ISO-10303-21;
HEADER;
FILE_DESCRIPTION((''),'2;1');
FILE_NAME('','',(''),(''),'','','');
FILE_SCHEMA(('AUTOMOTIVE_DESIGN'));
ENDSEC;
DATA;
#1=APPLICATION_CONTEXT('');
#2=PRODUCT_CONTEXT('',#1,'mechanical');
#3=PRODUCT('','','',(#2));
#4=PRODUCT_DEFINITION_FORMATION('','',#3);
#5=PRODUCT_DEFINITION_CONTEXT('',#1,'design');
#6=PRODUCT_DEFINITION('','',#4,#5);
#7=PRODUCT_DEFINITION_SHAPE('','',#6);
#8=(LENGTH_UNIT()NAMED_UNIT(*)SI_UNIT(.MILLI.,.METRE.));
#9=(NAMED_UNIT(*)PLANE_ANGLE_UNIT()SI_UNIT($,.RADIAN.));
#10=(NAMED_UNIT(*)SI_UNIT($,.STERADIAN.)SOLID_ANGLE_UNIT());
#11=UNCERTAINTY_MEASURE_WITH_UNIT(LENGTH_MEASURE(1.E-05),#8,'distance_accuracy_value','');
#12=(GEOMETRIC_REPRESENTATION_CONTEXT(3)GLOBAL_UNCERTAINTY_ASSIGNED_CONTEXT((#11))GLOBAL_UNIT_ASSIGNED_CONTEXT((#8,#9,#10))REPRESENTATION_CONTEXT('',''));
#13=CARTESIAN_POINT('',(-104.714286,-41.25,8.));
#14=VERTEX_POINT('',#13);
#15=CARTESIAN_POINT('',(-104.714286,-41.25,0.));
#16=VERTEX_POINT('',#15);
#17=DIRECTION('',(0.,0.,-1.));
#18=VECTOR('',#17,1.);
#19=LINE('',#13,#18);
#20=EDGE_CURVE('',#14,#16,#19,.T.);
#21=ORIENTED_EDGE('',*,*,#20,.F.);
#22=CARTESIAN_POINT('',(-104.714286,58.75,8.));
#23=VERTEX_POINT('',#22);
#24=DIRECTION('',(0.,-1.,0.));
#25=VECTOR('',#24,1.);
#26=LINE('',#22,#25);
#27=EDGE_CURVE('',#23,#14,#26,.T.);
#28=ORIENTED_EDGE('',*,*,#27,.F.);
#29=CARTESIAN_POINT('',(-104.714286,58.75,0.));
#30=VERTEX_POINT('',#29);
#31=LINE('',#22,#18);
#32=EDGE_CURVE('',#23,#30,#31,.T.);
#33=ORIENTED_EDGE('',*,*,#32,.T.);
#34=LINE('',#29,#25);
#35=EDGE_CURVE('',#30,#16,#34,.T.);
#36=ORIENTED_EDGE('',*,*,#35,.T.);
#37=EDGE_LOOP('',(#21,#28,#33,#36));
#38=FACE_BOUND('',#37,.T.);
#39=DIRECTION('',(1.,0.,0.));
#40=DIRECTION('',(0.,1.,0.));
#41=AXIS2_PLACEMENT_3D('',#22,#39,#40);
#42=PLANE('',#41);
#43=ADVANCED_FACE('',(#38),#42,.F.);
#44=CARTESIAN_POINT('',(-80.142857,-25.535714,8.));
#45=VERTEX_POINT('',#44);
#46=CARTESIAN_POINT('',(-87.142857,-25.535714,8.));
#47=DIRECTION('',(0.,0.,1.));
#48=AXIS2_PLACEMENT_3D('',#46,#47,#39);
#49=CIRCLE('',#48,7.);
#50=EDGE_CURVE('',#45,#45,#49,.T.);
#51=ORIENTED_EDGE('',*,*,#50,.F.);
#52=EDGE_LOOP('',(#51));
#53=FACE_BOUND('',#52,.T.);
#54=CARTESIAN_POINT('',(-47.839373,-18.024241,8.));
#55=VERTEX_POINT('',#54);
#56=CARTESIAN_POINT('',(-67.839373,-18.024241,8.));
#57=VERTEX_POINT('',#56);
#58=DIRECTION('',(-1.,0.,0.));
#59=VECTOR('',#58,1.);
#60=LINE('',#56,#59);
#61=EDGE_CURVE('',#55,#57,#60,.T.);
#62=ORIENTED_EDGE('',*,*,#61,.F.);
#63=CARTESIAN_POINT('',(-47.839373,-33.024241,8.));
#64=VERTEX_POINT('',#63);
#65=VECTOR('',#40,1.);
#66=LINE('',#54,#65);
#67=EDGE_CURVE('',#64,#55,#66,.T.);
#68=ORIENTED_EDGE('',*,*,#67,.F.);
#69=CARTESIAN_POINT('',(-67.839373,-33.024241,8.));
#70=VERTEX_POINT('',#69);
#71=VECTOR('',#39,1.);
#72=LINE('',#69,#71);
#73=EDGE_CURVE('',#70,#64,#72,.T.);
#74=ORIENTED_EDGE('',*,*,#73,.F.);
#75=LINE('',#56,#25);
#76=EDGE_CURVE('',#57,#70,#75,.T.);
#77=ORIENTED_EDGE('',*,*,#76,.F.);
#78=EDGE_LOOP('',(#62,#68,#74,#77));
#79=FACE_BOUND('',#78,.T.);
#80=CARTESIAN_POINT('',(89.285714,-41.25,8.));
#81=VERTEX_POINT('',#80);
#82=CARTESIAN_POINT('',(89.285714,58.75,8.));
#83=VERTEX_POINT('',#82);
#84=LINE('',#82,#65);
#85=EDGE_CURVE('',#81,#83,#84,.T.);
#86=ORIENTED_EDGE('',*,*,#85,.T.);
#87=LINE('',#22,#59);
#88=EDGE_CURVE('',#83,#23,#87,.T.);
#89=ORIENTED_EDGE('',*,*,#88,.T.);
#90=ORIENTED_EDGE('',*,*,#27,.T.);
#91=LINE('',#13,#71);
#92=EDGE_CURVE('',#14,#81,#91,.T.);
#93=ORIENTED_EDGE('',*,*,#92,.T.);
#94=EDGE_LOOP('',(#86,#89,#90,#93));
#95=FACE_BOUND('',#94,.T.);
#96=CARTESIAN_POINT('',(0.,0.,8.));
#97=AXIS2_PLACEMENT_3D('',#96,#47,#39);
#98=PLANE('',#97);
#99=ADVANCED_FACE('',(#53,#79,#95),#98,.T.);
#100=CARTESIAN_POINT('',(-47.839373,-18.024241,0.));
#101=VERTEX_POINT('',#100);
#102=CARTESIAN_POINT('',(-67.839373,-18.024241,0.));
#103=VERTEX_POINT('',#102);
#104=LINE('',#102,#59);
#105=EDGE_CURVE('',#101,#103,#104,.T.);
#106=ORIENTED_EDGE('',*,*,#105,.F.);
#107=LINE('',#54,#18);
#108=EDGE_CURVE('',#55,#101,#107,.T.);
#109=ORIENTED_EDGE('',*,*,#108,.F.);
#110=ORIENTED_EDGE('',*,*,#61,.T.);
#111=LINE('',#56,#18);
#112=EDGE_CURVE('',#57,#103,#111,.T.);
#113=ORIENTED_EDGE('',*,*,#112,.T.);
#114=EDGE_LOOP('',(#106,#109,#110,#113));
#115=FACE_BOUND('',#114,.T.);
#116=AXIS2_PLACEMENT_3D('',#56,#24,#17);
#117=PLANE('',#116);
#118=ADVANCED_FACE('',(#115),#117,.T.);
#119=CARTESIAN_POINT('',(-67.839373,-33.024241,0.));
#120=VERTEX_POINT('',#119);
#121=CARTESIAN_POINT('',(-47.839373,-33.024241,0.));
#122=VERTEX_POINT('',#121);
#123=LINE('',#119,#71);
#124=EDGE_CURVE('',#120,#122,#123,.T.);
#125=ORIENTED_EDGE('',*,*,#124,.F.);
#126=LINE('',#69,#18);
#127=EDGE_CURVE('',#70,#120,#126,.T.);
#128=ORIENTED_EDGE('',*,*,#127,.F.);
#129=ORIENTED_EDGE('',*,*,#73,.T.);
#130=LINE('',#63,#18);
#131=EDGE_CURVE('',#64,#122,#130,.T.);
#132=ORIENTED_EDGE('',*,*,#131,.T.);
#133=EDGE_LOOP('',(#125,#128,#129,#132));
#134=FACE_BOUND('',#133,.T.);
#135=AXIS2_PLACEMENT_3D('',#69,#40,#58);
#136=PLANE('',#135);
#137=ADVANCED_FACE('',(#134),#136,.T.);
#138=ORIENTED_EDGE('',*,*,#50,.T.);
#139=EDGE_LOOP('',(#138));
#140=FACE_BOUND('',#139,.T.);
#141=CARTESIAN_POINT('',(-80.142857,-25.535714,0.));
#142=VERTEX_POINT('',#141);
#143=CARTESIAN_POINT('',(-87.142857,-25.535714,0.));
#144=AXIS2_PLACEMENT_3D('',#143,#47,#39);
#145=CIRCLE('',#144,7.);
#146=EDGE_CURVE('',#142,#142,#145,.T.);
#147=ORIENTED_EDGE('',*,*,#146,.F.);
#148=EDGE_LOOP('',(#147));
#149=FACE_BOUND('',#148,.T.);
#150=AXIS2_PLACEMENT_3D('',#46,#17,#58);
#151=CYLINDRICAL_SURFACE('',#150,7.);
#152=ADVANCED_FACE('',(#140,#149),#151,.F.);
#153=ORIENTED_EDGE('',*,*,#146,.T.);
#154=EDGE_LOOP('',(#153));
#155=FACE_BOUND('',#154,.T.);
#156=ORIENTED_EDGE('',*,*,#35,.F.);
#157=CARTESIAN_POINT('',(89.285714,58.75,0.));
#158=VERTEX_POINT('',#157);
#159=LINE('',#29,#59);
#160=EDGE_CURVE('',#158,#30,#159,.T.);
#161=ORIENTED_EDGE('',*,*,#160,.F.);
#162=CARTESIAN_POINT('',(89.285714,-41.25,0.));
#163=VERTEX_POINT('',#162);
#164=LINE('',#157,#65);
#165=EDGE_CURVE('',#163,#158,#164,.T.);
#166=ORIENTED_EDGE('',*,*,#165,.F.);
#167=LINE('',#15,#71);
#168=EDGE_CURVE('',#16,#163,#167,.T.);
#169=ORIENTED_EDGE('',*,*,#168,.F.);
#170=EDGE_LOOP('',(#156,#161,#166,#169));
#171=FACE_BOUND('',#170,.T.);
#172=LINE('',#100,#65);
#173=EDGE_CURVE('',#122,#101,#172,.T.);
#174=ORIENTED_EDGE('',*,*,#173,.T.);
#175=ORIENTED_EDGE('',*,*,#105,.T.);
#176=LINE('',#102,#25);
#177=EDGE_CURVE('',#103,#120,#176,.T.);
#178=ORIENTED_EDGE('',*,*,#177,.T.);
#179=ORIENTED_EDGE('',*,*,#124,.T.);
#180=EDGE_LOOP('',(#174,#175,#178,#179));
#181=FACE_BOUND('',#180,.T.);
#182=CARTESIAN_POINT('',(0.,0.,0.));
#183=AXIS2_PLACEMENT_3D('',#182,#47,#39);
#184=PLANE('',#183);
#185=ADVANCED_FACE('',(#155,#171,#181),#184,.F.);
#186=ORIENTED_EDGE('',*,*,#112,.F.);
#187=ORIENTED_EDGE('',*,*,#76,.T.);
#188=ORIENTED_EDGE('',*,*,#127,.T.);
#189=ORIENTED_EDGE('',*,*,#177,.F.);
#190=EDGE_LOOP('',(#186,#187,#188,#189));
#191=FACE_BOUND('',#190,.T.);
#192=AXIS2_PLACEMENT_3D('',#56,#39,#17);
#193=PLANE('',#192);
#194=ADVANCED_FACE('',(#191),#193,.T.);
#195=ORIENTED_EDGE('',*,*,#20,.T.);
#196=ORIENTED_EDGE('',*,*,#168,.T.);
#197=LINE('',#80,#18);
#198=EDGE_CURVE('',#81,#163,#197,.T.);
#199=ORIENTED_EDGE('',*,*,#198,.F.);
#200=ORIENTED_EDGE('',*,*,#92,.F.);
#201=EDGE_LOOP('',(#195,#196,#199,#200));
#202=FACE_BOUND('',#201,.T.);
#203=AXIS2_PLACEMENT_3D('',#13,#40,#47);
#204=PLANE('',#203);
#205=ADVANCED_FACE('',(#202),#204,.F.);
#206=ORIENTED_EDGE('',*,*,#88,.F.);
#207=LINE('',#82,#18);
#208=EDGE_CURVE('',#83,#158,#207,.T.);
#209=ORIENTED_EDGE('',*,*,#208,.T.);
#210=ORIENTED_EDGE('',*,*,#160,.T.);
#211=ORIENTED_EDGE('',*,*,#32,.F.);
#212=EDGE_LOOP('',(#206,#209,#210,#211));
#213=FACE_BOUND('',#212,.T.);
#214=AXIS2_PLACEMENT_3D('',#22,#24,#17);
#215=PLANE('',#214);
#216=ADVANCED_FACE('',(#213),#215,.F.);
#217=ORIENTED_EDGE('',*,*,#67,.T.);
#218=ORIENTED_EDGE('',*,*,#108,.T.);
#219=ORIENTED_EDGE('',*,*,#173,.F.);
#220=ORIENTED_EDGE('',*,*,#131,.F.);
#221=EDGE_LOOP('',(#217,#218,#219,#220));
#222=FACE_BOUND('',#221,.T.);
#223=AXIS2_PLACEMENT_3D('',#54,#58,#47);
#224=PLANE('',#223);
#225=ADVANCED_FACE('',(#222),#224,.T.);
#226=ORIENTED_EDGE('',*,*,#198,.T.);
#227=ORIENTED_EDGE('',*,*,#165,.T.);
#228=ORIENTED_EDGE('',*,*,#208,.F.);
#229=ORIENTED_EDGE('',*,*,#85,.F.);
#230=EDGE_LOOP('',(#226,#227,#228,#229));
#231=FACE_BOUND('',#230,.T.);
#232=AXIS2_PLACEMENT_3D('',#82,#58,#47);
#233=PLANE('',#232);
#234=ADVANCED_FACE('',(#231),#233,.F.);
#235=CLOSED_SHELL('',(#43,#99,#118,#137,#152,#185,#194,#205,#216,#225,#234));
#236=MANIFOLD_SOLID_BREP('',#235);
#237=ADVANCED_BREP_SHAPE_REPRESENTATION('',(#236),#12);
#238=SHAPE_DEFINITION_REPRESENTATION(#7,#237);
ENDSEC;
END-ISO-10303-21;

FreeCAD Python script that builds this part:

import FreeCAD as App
import Part
import Sketcher


def add_polygon(sketch, points):
    """Adds a closed chain of lines whose ends are joined by coincident constraints."""
    first, n = sketch.GeometryCount, len(points)
    for a, b in zip(points, points[1:] + points[:1]):
        sketch.addGeometry(Part.LineSegment(App.Vector(*a, 0), App.Vector(*b, 0)), False)
    for i in range(n):
        sketch.addConstraint(Sketcher.Constraint("Coincident", first + i, 2, first + (i + 1) % n, 1))

doc = App.newDocument("Part")
body = doc.addObject("PartDesign::Body", "Body")

sketch1 = body.newObject("Sketcher::SketchObject", "Sketch")
sketch1.AttachmentSupport = (doc.getObject("XY_Plane"), [""])
sketch1.MapMode = "FlatFace"
add_polygon(sketch1, [(-105, 59), (-105, -41), (89, -41), (89, 59)])
sketch1.addGeometry(Part.Circle(App.Vector(-87, -26, 0), App.Vector(0, 0, 1), 7), False)
add_polygon(sketch1, [(-48, -33), (-68, -33), (-68, -18), (-48, -18)])
sketch1.addConstraint([
    Sketcher.Constraint("Vertical", 0),
    Sketcher.Constraint("Horizontal", 1),
    Sketcher.Constraint("Vertical", 2),
    Sketcher.Constraint("Horizontal", 3),
    Sketcher.Constraint("Horizontal", 5),
    Sketcher.Constraint("Vertical", 6),
    Sketcher.Constraint("Horizontal", 7),
    Sketcher.Constraint("Vertical", 8),
    Sketcher.Constraint("Diameter", 4, 14.0),
    Sketcher.Constraint("DistanceX", 1, 1, 1, 2, 194.0),
    Sketcher.Constraint("DistanceX", 5, 2, 5, 1, 20.0),
    Sketcher.Constraint("DistanceY", 0, 2, 0, 1, 100.0),
    Sketcher.Constraint("DistanceY", 6, 1, 6, 2, 15.0),
    Sketcher.Constraint("DistanceY", 0, 2, -1, 1, 41.25),
    Sketcher.Constraint("DistanceY", 5, 2, -1, 1, 33.024241),
    Sketcher.Constraint("DistanceX", 0, 2, 4, 3, 17.571429),
    Sketcher.Constraint("DistanceX", 4, 3, -1, 1, 87.142857),
    Sketcher.Constraint("DistanceY", 4, 3, -1, 1, 25.535714),
    Sketcher.Constraint("DistanceX", 5, 2, -1, 1, 67.839373),
])
pad1 = body.newObject("PartDesign::Pad", "Pad")
pad1.Profile = sketch1
pad1.Length = 8

doc.recompute()
